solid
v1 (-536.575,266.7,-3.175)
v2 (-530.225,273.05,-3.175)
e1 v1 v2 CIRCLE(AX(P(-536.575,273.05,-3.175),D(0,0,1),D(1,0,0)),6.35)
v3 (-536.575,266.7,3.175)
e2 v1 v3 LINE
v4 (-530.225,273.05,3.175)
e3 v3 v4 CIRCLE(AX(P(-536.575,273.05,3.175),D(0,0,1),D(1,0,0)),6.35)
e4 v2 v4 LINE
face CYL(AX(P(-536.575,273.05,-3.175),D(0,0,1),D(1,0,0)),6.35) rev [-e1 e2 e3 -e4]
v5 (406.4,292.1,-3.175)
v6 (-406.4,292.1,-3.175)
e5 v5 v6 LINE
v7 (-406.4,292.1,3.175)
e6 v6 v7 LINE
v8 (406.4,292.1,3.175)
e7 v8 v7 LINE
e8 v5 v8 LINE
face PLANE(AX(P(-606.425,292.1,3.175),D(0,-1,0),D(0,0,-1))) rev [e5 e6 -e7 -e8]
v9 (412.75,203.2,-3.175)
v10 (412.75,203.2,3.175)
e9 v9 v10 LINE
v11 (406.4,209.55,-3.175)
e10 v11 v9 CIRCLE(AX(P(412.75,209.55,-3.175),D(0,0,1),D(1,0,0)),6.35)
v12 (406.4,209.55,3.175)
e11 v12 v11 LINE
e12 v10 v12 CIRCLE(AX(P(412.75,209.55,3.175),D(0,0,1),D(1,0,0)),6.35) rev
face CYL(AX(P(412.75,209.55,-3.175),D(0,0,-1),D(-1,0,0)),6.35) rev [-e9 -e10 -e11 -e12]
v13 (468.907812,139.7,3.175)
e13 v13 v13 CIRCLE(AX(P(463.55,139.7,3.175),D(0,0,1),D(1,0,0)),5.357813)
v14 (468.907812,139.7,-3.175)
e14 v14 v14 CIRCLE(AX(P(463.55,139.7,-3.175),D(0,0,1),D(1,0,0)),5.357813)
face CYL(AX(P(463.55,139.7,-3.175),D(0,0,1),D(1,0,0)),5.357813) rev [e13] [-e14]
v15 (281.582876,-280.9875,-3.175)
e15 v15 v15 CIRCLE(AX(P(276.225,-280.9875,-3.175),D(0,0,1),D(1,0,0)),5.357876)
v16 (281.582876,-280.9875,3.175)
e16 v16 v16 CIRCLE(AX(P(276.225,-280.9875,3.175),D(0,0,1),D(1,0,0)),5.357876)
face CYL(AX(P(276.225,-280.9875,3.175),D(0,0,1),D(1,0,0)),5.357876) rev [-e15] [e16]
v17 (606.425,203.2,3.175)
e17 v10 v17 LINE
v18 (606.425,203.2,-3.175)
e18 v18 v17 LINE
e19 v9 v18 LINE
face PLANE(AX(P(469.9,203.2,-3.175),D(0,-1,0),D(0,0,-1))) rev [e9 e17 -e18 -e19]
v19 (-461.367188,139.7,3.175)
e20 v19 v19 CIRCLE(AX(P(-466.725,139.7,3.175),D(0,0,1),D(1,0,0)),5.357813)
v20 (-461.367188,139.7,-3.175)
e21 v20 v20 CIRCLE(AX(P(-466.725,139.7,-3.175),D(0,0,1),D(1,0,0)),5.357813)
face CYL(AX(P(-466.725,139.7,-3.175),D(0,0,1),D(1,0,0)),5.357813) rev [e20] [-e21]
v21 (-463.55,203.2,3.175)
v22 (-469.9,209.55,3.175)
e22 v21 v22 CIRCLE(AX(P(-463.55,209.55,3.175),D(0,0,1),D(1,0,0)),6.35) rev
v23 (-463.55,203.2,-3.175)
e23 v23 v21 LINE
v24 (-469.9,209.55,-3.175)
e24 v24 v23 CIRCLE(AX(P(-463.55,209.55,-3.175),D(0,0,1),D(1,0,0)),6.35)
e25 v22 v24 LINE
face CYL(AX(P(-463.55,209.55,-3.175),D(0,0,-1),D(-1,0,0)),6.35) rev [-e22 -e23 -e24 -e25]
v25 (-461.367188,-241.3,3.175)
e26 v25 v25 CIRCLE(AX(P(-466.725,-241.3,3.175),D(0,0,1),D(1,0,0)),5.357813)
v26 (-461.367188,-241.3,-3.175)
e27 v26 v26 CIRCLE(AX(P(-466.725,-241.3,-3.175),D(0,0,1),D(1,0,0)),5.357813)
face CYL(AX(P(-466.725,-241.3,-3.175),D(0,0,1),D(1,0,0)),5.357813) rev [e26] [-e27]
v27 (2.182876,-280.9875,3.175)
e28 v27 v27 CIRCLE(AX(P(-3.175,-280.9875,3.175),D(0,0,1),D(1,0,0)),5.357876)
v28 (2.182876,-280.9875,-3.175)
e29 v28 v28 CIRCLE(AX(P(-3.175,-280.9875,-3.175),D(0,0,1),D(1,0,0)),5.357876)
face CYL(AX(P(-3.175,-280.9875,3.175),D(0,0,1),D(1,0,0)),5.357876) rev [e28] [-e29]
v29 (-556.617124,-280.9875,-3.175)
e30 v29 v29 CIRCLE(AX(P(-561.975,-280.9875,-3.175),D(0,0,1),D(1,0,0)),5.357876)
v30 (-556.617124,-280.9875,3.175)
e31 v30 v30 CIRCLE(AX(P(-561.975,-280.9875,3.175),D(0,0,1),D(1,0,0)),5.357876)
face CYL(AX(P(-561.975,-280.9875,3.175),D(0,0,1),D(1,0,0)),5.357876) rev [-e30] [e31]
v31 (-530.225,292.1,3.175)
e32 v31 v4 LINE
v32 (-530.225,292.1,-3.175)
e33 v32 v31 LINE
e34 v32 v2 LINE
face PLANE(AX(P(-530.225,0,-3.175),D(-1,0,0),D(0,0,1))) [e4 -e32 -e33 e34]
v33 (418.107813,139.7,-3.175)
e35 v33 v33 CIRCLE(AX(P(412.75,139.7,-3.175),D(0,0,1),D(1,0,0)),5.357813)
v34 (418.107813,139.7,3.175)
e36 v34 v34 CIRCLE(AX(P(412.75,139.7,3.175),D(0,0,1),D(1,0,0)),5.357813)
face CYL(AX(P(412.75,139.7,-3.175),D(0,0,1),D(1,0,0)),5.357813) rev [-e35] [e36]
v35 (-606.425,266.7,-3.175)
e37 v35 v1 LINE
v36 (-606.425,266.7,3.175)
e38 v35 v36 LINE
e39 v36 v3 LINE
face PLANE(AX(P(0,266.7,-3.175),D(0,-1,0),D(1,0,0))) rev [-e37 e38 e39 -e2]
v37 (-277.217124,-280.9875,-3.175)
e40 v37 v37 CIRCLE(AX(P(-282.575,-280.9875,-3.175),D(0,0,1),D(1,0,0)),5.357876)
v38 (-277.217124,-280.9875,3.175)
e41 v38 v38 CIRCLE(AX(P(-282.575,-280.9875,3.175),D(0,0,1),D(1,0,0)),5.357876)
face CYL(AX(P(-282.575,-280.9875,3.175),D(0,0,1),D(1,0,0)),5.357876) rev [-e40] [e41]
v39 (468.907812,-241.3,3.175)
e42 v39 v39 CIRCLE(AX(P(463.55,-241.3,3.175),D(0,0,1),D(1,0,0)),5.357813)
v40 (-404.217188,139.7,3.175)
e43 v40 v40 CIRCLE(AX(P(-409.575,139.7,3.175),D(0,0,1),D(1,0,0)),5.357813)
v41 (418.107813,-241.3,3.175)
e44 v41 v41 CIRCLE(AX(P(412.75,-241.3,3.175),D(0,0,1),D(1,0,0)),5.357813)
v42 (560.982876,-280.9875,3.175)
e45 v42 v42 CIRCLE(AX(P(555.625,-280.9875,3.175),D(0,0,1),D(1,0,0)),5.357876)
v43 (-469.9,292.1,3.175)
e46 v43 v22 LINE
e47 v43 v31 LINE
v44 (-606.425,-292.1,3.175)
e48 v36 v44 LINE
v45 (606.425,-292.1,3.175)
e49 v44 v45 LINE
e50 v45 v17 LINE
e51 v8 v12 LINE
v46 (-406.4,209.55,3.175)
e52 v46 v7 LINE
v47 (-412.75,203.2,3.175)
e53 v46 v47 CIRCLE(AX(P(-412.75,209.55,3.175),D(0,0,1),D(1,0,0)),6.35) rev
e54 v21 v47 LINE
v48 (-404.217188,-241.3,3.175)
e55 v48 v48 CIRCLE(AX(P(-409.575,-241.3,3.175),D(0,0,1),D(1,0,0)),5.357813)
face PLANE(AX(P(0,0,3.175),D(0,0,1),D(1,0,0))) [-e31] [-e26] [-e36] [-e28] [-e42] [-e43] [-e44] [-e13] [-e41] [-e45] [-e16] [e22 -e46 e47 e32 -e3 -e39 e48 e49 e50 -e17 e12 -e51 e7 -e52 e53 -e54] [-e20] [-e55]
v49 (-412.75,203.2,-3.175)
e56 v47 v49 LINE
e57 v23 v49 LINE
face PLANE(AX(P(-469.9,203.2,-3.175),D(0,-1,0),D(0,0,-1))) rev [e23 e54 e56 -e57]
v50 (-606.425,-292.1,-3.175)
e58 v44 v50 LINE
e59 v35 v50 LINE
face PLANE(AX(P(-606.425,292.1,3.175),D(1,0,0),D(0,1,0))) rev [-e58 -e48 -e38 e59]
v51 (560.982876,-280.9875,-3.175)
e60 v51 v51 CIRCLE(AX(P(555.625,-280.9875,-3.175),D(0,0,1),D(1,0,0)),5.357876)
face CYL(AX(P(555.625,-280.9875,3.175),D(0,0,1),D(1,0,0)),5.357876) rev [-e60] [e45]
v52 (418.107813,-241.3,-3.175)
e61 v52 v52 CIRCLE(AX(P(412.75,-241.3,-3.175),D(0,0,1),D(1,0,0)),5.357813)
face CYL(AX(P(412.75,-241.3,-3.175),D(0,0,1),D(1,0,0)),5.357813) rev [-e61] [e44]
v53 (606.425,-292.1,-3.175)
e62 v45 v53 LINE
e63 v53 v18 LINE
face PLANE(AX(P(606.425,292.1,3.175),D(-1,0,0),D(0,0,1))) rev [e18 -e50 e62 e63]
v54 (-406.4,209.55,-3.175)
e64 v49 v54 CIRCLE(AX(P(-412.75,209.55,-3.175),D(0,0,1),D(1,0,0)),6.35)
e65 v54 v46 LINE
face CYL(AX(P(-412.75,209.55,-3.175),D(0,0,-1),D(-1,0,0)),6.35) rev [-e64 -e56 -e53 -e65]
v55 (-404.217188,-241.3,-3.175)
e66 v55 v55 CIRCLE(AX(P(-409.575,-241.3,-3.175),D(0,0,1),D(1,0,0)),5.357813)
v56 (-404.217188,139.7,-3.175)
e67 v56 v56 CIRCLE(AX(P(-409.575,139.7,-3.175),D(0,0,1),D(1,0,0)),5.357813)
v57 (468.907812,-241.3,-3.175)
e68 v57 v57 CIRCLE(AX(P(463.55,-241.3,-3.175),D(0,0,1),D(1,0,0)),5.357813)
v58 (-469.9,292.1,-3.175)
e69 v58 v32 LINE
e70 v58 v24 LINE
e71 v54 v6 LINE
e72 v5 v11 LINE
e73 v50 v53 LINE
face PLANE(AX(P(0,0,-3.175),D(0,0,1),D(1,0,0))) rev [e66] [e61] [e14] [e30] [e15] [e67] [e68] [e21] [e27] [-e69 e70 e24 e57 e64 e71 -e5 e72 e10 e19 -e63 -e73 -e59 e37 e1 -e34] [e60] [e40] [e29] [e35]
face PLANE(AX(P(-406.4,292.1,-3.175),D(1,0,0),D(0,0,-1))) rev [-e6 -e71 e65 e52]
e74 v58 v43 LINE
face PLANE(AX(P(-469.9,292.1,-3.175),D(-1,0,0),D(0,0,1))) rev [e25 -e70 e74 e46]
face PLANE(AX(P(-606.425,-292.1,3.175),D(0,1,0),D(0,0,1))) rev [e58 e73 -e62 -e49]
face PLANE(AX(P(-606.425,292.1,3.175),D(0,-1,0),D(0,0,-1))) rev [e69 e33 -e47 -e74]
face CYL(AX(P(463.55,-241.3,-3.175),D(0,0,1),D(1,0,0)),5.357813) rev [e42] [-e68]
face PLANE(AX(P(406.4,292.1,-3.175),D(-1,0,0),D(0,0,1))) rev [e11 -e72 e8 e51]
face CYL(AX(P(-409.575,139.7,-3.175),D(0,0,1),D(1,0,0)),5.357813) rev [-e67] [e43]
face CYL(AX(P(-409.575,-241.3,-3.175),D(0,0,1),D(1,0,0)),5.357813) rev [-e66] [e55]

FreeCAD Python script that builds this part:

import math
import FreeCAD as App
import Part
import Sketcher
from FreeCAD import Vector
Q = App.Units.Quantity


def edges_at(feature, points):
    """Names of the edges that pass closest to the given points."""
    edges = feature.Shape.Edges
    near = lambda p: min(range(len(edges)), key=lambda i: edges[i].distToShape(Part.Vertex(*p))[0])
    return sorted({f"Edge{near(p) + 1}" for p in points})


def add_polygon(sketch, points):
    """Adds a closed chain of lines whose ends are joined by coincident constraints."""
    first, n = sketch.GeometryCount, len(points)
    for a, b in zip(points, points[1:] + points[:1]):
        sketch.addGeometry(Part.LineSegment(App.Vector(*a, 0), App.Vector(*b, 0)), False)
    for i in range(n):
        sketch.addConstraint(Sketcher.Constraint("Coincident", first + i, 2, first + (i + 1) % n, 1))

doc = App.newDocument("Part")
params = doc.addObject("Spreadsheet::Sheet", "Params")
for row, (alias, value) in enumerate([
    ("sketch1_height", "23 in"),
    ("sketch1_width", "47.75 in"),
    ("pad1_length", "0.25 in"),
    ("sketch2_diameter", "0.421875 in"),
    ("sketch2_width", "2.5 in"),
    ("sketch2_height", "3.5 in"),
    ("fillet_radius", "0.25 in"),
    ("sketch3_height", "3.5 in"),
    ("sketch3_width", "5.625 in"),
    ("hole_diameter", "10.715752 mm"),
    ("linearpattern_pitch", "11 in"),
    ("sketch5_width", "3 in"),
    ("sketch5_height", "1 in"),
    ("sketch5_radius", "0.25 in"),
], start=1):
    params.set(f"A{row}", alias)
    params.set(f"B{row}", "=" + value)
    params.setAlias(f"B{row}", alias)

body = doc.addObject("PartDesign::Body", "Body")

sketch1 = body.newObject("Sketcher::SketchObject", "Sketch")
sketch1.AttachmentSupport = (doc.getObject("XY_Plane"), [""])
sketch1.MapMode = "FlatFace"
add_polygon(sketch1, [(-606, 292), (-606, -292), (606, -292), (606, 292)])
sketch1.addConstraint(Sketcher.Constraint("Vertical", 0))
sketch1.addConstraint(Sketcher.Constraint("Horizontal", 1))
sketch1.addConstraint(Sketcher.Constraint("Vertical", 2))
sketch1.addConstraint(Sketcher.Constraint("Horizontal", 3))
sketch1.addConstraint(Sketcher.Constraint("Symmetric", 0, 2, 2, 2, -1, 1))
sketch1.addConstraint(Sketcher.Constraint("DistanceY", 0, 2, 0, 1, Q("23 in")))
sketch1.addConstraint(Sketcher.Constraint("DistanceX", 1, 1, 1, 2, Q("47.75 in")))
sketch1.setExpression("Constraints[9]", "Params.sketch1_height")
sketch1.setExpression("Constraints[10]", "Params.sketch1_width")
pad1 = body.newObject("PartDesign::Pad", "Pad")
pad1.Profile = sketch1
pad1.setExpression("Length", "Params.pad1_length")
pad1.Midplane = True

sketch2 = body.newObject("Sketcher::SketchObject", "Sketch001")
sketch2.AttachmentSupport = (doc.getObject("XY_Plane"), [""])
sketch2.MapMode = "FlatFace"
sketch2.AttachmentOffset = App.Placement(Vector(0, 0, 0.125 * 25.4), App.Rotation())
sketch2.addGeometry(Part.Circle(Vector(-467, 140, 0), Vector(0, 0, 1), 5), False)
sketch2.addGeometry(Part.Circle(Vector(-410, 140, 0), Vector(0, 0, 1), 5), False)
sketch2.addGeometry(Part.Circle(Vector(-467, -241, 0), Vector(0, 0, 1), 5), False)
sketch2.addGeometry(Part.Circle(Vector(-410, -241, 0), Vector(0, 0, 1), 5), False)
sketch2.addGeometry(Part.Circle(Vector(413, 140, 0), Vector(0, 0, 1), 5), False)
sketch2.addGeometry(Part.Circle(Vector(464, 140, 0), Vector(0, 0, 1), 5), False)
sketch2.addGeometry(Part.Circle(Vector(413, -241, 0), Vector(0, 0, 1), 5), False)
sketch2.addGeometry(Part.Circle(Vector(464, -241, 0), Vector(0, 0, 1), 5), False)
add_polygon(sketch2, [(406, 292), (406, 203), (470, 203), (470, 292)])
add_polygon(sketch2, [(-470, 292), (-470, 203), (-406, 203), (-406, 292)])
sketch2.addConstraint(Sketcher.Constraint("Vertical", 8))
sketch2.addConstraint(Sketcher.Constraint("Horizontal", 9))
sketch2.addConstraint(Sketcher.Constraint("Vertical", 10))
sketch2.addConstraint(Sketcher.Constraint("Horizontal", 11))
sketch2.addConstraint(Sketcher.Constraint("Vertical", 12))
sketch2.addConstraint(Sketcher.Constraint("Horizontal", 13))
sketch2.addConstraint(Sketcher.Constraint("Vertical", 14))
sketch2.addConstraint(Sketcher.Constraint("Horizontal", 15))
sketch2.addConstraint(Sketcher.Constraint("Equal", 0, 1))
sketch2.addConstraint(Sketcher.Constraint("Equal", 1, 2))
sketch2.addConstraint(Sketcher.Constraint("Equal", 2, 3))
sketch2.addConstraint(Sketcher.Constraint("Equal", 3, 4))
sketch2.addConstraint(Sketcher.Constraint("Equal", 4, 5))
sketch2.addConstraint(Sketcher.Constraint("Equal", 5, 6))
sketch2.addConstraint(Sketcher.Constraint("Equal", 6, 7))
sketch2.addConstraint(Sketcher.Constraint("Symmetric", 9, 2, 12, 2, -2))
sketch2.addConstraint(Sketcher.Constraint("Symmetric", 11, 2, 14, 2, -2))
sketch2.addConstraint(Sketcher.Constraint("Horizontal", 0, 3, 1, 3))
sketch2.addConstraint(Sketcher.Constraint("Horizontal", 2, 3, 3, 3))
sketch2.addConstraint(Sketcher.Constraint("Horizontal", 1, 3, 4, 3))
sketch2.addConstraint(Sketcher.Constraint("Horizontal", 4, 3, 5, 3))
sketch2.addConstraint(Sketcher.Constraint("Horizontal", 3, 3, 6, 3))
sketch2.addConstraint(Sketcher.Constraint("Horizontal", 6, 3, 7, 3))
sketch2.addConstraint(Sketcher.Constraint("Vertical", 0, 3, 2, 3))
sketch2.addConstraint(Sketcher.Constraint("Vertical", 1, 3, 3, 3))
sketch2.addConstraint(Sketcher.Constraint("Vertical", 4, 3, 6, 3))
sketch2.addConstraint(Sketcher.Constraint("Vertical", 5, 3, 7, 3))
sketch2.addConstraint(Sketcher.Constraint("Diameter", 0, Q("0.421875 in")))
sketch2.addConstraint(Sketcher.Constraint("DistanceX", 9, 1, 9, 2, Q("2.5 in")))
sketch2.addConstraint(Sketcher.Constraint("DistanceY", 8, 2, 8, 1, Q("3.5 in")))
sketch2.addConstraint(Sketcher.Constraint("DistanceX", -1, 1, 8, 2, Q("16 in")))
sketch2.addConstraint(Sketcher.Constraint("DistanceY", -1, 1, 8, 2, Q("8 in")))
sketch2.addConstraint(Sketcher.Constraint("DistanceY", 2, 3, 0, 3, Q("15 in")))
sketch2.addConstraint(Sketcher.Constraint("DistanceX", 4, 3, 5, 3, Q("2 in")))
sketch2.addConstraint(Sketcher.Constraint("DistanceY", 5, 3, 10, 2, Q("6 in")))
sketch2.addConstraint(Sketcher.Constraint("DistanceX", -1, 1, 4, 3, Q("16.25 in")))
sketch2.addConstraint(Sketcher.Constraint("DistanceX", 0, 3, 1, 3, Q("2.25 in")))
sketch2.addConstraint(Sketcher.Constraint("DistanceX", 0, 3, -1, 1, Q("18.375 in")))
sketch2.setExpression("Constraints[35]", "Params.sketch2_diameter")
sketch2.setExpression("Constraints[36]", "Params.sketch2_width")
sketch2.setExpression("Constraints[37]", "Params.sketch2_height")
pocket1 = body.newObject("PartDesign::Pocket", "Pocket")
pocket1.Profile = sketch2
pocket1.Type = "ThroughAll"
doc.recompute()

fillet = body.newObject("PartDesign::Fillet", "Fillet")
fillet.Base = (pocket1, edges_at(pocket1, [
    (-406.4, 203.2, 0),
    (-469.9, 203.2, 0),
    (469.9, 203.2, 0),
    (406.4, 203.2, 0),
]))
fillet.setExpression("Radius", "Params.fillet_radius")

sketch3 = body.newObject("Sketcher::SketchObject", "Sketch002")
sketch3.AttachmentSupport = (doc.getObject("XY_Plane"), [""])
sketch3.MapMode = "FlatFace"
sketch3.AttachmentOffset = App.Placement(Vector(0, 0, 0.125 * 25.4), App.Rotation())
add_polygon(sketch3, [(464, 292), (464, 203), (606, 203), (606, 292)])
sketch3.addConstraint(Sketcher.Constraint("Vertical", 0))
sketch3.addConstraint(Sketcher.Constraint("Horizontal", 1))
sketch3.addConstraint(Sketcher.Constraint("Vertical", 2))
sketch3.addConstraint(Sketcher.Constraint("Horizontal", 3))
sketch3.addConstraint(Sketcher.Constraint("DistanceY", 0, 2, 0, 1, Q("3.5 in")))
sketch3.addConstraint(Sketcher.Constraint("DistanceY", -1, 1, 0, 2, Q("8 in")))
sketch3.addConstraint(Sketcher.Constraint("DistanceX", 1, 1, 1, 2, Q("5.625 in")))
sketch3.addConstraint(Sketcher.Constraint("DistanceX", -1, 1, 0, 2, Q("18.25 in")))
sketch3.setExpression("Constraints[8]", "Params.sketch3_height")
sketch3.setExpression("Constraints[10]", "Params.sketch3_width")
pocket2 = body.newObject("PartDesign::Pocket", "Pocket001")
pocket2.Profile = sketch3
pocket2.Type = "ThroughAll"

sketch4 = body.newObject("Sketcher::SketchObject", "Sketch003")
sketch4.AttachmentSupport = (doc.getObject("XY_Plane"), [""])
sketch4.MapMode = "FlatFace"
sketch4.AttachmentOffset = App.Placement(Vector(0, 0, 0.125 * 25.4), App.Rotation())
sketch4.addGeometry(Part.Circle(Vector(-562, -281, 0), Vector(0, 0, 1), 5), False)
sketch4.addConstraint(Sketcher.Constraint("DistanceX", 0, 3, -1, 1, Q("22.125 in")))
sketch4.addConstraint(Sketcher.Constraint("DistanceY", 0, 3, -1, 1, Q("11.0625 in")))
sketch4.addConstraint(Sketcher.Constraint("Diameter", 0, Q("10.715752 mm")))
doc.recompute()
hole = body.newObject("PartDesign::Hole", "Hole")
hole.Profile = sketch4
hole.ThreadType = "None"
hole.setExpression("Diameter", "Params.hole_diameter")
hole.DepthType = "ThroughAll"
doc.recompute()

linearpattern = body.newObject("PartDesign::LinearPattern", "LinearPattern")
linearpattern.Originals = [hole]
linearpattern.Direction = (doc.getObject("X_Axis"), [""])
linearpattern.Mode = "offset"
linearpattern.setExpression("Offset", "Params.linearpattern_pitch")
linearpattern.Occurrences = 5
body.Tip = linearpattern

sketch5 = body.newObject("Sketcher::SketchObject", "Sketch004")
sketch5.AttachmentSupport = (doc.getObject("XY_Plane"), [""])
sketch5.MapMode = "FlatFace"
sketch5.AttachmentOffset = App.Placement(Vector(0, 0, 0.125 * 25.4), App.Rotation())
sketch5.addGeometry(Part.LineSegment(Vector(-606, 292, 0), Vector(-606, 267, 0)), False)
sketch5.addGeometry(Part.LineSegment(Vector(-606, 267, 0), Vector(-537, 267, 0)), False)
sketch5.addGeometry(Part.ArcOfCircle(Part.Circle(Vector(-537, 273, 0), Vector(0, 0, 1), 6), math.radians(-90), math.radians(0)), False)
sketch5.addGeometry(Part.LineSegment(Vector(-530, 273, 0), Vector(-530, 292, 0)), False)
sketch5.addGeometry(Part.LineSegment(Vector(-530, 292, 0), Vector(-606, 292, 0)), False)
sketch5.addConstraint(Sketcher.Constraint("Coincident", 0, 2, 1, 1))
sketch5.addConstraint(Sketcher.Constraint("Tangent", 1, 2, 2, 1))
sketch5.addConstraint(Sketcher.Constraint("Tangent", 2, 2, 3, 1))
sketch5.addConstraint(Sketcher.Constraint("Coincident", 3, 2, 4, 1))
sketch5.addConstraint(Sketcher.Constraint("Coincident", 4, 2, 0, 1))
sketch5.addConstraint(Sketcher.Constraint("Vertical", 0))
sketch5.addConstraint(Sketcher.Constraint("Horizontal", 1))
sketch5.addConstraint(Sketcher.Constraint("Vertical", 3))
sketch5.addConstraint(Sketcher.Constraint("Horizontal", 4))
sketch5.addConstraint(Sketcher.Constraint("DistanceX", 4, 2, 4, 1, Q("3 in")))
sketch5.addConstraint(Sketcher.Constraint("DistanceY", 0, 2, 0, 1, Q("1 in")))
sketch5.addConstraint(Sketcher.Constraint("Radius", 2, Q("0.25 in")))
sketch5.addConstraint(Sketcher.Constraint("DistanceY", -1, 1, 0, 2, Q("10.5 in")))
sketch5.addConstraint(Sketcher.Constraint("DistanceX", 2, 3, -1, 1, Q("21.125 in")))
sketch5.setExpression("Constraints[9]", "Params.sketch5_width")
sketch5.setExpression("Constraints[10]", "Params.sketch5_height")
sketch5.setExpression("Constraints[11]", "Params.sketch5_radius")
pocket3 = body.newObject("PartDesign::Pocket", "Pocket002")
pocket3.Profile = sketch5
pocket3.Type = "ThroughAll"

doc.recompute()
